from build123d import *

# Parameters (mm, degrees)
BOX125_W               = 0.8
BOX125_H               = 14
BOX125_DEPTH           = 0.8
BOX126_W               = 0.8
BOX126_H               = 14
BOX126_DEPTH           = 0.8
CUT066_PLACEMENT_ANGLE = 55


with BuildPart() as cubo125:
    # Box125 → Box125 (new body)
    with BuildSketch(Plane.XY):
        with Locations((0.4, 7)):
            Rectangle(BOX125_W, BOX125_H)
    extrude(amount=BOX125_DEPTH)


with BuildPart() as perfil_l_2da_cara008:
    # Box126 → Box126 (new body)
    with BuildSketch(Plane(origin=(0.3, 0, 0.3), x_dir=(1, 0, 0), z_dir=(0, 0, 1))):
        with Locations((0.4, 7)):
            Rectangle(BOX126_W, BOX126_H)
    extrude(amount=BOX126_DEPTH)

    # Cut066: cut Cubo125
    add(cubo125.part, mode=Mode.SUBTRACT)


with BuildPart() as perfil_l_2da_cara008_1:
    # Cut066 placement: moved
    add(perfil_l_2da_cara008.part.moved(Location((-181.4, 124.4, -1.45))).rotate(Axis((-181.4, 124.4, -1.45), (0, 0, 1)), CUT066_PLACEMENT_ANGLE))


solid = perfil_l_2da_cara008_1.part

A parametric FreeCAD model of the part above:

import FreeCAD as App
import Part
import Sketcher
Q = App.Units.Quantity

doc = App.newDocument("Part")
body = doc.addObject("PartDesign::Body", "Body")

sketch1 = doc.addObject("Sketcher::SketchObject", "Sketch")
body.addObject(sketch1)
sketch1.AttachmentSupport = (doc.XY_Plane, [""])
sketch1.MapMode = "FlatFace"
sketch1.addGeometry(Part.LineSegment(App.Vector(0, 14, 0), App.Vector(0, 0, 0)), False)
sketch1.addGeometry(Part.LineSegment(App.Vector(0, 0, 0), App.Vector(0.8, 0, 0)), False)
sketch1.addGeometry(Part.LineSegment(App.Vector(0.8, 0, 0), App.Vector(0.8, 14, 0)), False)
sketch1.addGeometry(Part.LineSegment(App.Vector(0.8, 14, 0), App.Vector(0, 14, 0)), False)
sketch1.addConstraint(Sketcher.Constraint("Coincident", 0, 2, 1, 1))
sketch1.addConstraint(Sketcher.Constraint("Coincident", 1, 2, 2, 1))
sketch1.addConstraint(Sketcher.Constraint("Coincident", 2, 2, 3, 1))
sketch1.addConstraint(Sketcher.Constraint("Coincident", 3, 2, 0, 1))
sketch1.addConstraint(Sketcher.Constraint("Vertical", 0))
sketch1.addConstraint(Sketcher.Constraint("Horizontal", 1))
sketch1.addConstraint(Sketcher.Constraint("Vertical", 2))
sketch1.addConstraint(Sketcher.Constraint("Horizontal", 3))
sketch1.addConstraint(Sketcher.Constraint("Coincident", 0, 2, -1, 1))
sketch1.addConstraint(Sketcher.Constraint("DistanceY", 0, 2, 0, 1, Q("14 mm")))
sketch1.addConstraint(Sketcher.Constraint("DistanceX", 1, 1, 1, 2, Q("0.8 mm")))
pad1 = doc.addObject("PartDesign::Pad", "Pad")
body.addObject(pad1)
pad1.Profile = sketch1
pad1.Length = 0.8
body2 = doc.addObject("PartDesign::Body", "Body001")

sketch2 = doc.addObject("Sketcher::SketchObject", "Sketch001")
body2.addObject(sketch2)
sketch2.AttachmentSupport = (doc.getObject("XY_Plane001"), [""])
sketch2.MapMode = "FlatFace"
sketch2.AttachmentOffset = App.Placement(App.Vector(0, 0, 0.3), App.Rotation())
sketch2.addGeometry(Part.LineSegment(App.Vector(0.3, 14, 0), App.Vector(0.3, 0, 0)), False)
sketch2.addGeometry(Part.LineSegment(App.Vector(0.3, 0, 0), App.Vector(1.1, 0, 0)), False)
sketch2.addGeometry(Part.LineSegment(App.Vector(1.1, 0, 0), App.Vector(1.1, 14, 0)), False)
sketch2.addGeometry(Part.LineSegment(App.Vector(1.1, 14, 0), App.Vector(0.3, 14, 0)), False)
sketch2.addConstraint(Sketcher.Constraint("Coincident", 0, 2, 1, 1))
sketch2.addConstraint(Sketcher.Constraint("Coincident", 1, 2, 2, 1))
sketch2.addConstraint(Sketcher.Constraint("Coincident", 2, 2, 3, 1))
sketch2.addConstraint(Sketcher.Constraint("Coincident", 3, 2, 0, 1))
sketch2.addConstraint(Sketcher.Constraint("Vertical", 0))
sketch2.addConstraint(Sketcher.Constraint("Horizontal", 1))
sketch2.addConstraint(Sketcher.Constraint("Vertical", 2))
sketch2.addConstraint(Sketcher.Constraint("Horizontal", 3))
sketch2.addConstraint(Sketcher.Constraint("PointOnObject", 0, 2, -1))
sketch2.addConstraint(Sketcher.Constraint("DistanceY", 0, 2, 0, 1, Q("14 mm")))
sketch2.addConstraint(Sketcher.Constraint("DistanceX", 1, 1, 1, 2, Q("0.8 mm")))
sketch2.addConstraint(Sketcher.Constraint("DistanceX", -1, 1, 0, 2, Q("0.3 mm")))
pad2 = doc.addObject("PartDesign::Pad", "Pad001")
body2.addObject(pad2)
pad2.Profile = sketch2
pad2.Length = 0.8
doc.recompute()

boolean = doc.addObject("PartDesign::Boolean", "Boolean")
body2.addObject(boolean)
boolean.Type = "Cut"
boolean.addObjects([body])
body3 = doc.addObject("PartDesign::Body", "Body002")
doc.recompute()

body2.Placement = App.Placement(App.Vector(-181.4, 124.4, -1.45), App.Rotation(App.Vector(0, 0, 1), 55))
boolean2 = doc.addObject("PartDesign::Boolean", "Boolean001")
body3.addObject(boolean2)
boolean2.Type = "Fuse"
boolean2.addObjects([body2])

doc.recompute()
